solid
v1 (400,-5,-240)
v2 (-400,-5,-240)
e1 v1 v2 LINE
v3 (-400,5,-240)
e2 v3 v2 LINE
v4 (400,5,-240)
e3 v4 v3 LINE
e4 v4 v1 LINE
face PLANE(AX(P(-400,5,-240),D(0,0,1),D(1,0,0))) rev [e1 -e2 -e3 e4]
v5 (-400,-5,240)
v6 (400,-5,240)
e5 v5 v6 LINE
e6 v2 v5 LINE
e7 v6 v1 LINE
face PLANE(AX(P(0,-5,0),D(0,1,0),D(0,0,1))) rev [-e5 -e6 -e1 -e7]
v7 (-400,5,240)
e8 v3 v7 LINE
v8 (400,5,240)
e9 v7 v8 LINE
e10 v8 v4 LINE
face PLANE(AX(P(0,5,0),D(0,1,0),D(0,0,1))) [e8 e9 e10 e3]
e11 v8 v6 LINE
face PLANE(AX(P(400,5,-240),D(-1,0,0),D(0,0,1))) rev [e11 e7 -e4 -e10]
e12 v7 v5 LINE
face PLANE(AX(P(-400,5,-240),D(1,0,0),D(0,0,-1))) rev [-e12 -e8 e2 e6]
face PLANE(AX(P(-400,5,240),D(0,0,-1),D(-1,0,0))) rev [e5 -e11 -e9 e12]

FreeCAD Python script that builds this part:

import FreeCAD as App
import Part
import Sketcher
from FreeCAD import Vector
Q = App.Units.Quantity


def add_polygon(sketch, points):
    """Adds a closed chain of lines whose ends are joined by coincident constraints."""
    first, n = sketch.GeometryCount, len(points)
    for a, b in zip(points, points[1:] + points[:1]):
        sketch.addGeometry(Part.LineSegment(App.Vector(*a, 0), App.Vector(*b, 0)), False)
    for i in range(n):
        sketch.addConstraint(Sketcher.Constraint("Coincident", first + i, 2, first + (i + 1) % n, 1))

doc = App.newDocument("Part")
body = doc.addObject("PartDesign::Body", "Body")

sketch1 = body.newObject("Sketcher::SketchObject", "Sketch")
sketch1.AttachmentSupport = (doc.getObject("XZ_Plane"), [""])
sketch1.MapMode = "FlatFace"
add_polygon(sketch1, [(-400, -240), (-400, 240), (400, 240), (400, -240)])
sketch1.addConstraint([
    Sketcher.Constraint("Vertical", 0),
    Sketcher.Constraint("Horizontal", 1),
    Sketcher.Constraint("Vertical", 2),
    Sketcher.Constraint("Horizontal", 3),
    Sketcher.Constraint("Symmetric", 0, 2, 2, 2, -1, 1),
    Sketcher.Constraint("DistanceX", 1, 1, 1, 2, Q("800 mm")),
    Sketcher.Constraint("DistanceY", 0, 1, 0, 2, Q("480 mm")),
])
pad1 = body.newObject("PartDesign::Pad", "Pad")
pad1.Profile = sketch1
pad1.Length = 10
pad1.Midplane = True

doc.recompute()
